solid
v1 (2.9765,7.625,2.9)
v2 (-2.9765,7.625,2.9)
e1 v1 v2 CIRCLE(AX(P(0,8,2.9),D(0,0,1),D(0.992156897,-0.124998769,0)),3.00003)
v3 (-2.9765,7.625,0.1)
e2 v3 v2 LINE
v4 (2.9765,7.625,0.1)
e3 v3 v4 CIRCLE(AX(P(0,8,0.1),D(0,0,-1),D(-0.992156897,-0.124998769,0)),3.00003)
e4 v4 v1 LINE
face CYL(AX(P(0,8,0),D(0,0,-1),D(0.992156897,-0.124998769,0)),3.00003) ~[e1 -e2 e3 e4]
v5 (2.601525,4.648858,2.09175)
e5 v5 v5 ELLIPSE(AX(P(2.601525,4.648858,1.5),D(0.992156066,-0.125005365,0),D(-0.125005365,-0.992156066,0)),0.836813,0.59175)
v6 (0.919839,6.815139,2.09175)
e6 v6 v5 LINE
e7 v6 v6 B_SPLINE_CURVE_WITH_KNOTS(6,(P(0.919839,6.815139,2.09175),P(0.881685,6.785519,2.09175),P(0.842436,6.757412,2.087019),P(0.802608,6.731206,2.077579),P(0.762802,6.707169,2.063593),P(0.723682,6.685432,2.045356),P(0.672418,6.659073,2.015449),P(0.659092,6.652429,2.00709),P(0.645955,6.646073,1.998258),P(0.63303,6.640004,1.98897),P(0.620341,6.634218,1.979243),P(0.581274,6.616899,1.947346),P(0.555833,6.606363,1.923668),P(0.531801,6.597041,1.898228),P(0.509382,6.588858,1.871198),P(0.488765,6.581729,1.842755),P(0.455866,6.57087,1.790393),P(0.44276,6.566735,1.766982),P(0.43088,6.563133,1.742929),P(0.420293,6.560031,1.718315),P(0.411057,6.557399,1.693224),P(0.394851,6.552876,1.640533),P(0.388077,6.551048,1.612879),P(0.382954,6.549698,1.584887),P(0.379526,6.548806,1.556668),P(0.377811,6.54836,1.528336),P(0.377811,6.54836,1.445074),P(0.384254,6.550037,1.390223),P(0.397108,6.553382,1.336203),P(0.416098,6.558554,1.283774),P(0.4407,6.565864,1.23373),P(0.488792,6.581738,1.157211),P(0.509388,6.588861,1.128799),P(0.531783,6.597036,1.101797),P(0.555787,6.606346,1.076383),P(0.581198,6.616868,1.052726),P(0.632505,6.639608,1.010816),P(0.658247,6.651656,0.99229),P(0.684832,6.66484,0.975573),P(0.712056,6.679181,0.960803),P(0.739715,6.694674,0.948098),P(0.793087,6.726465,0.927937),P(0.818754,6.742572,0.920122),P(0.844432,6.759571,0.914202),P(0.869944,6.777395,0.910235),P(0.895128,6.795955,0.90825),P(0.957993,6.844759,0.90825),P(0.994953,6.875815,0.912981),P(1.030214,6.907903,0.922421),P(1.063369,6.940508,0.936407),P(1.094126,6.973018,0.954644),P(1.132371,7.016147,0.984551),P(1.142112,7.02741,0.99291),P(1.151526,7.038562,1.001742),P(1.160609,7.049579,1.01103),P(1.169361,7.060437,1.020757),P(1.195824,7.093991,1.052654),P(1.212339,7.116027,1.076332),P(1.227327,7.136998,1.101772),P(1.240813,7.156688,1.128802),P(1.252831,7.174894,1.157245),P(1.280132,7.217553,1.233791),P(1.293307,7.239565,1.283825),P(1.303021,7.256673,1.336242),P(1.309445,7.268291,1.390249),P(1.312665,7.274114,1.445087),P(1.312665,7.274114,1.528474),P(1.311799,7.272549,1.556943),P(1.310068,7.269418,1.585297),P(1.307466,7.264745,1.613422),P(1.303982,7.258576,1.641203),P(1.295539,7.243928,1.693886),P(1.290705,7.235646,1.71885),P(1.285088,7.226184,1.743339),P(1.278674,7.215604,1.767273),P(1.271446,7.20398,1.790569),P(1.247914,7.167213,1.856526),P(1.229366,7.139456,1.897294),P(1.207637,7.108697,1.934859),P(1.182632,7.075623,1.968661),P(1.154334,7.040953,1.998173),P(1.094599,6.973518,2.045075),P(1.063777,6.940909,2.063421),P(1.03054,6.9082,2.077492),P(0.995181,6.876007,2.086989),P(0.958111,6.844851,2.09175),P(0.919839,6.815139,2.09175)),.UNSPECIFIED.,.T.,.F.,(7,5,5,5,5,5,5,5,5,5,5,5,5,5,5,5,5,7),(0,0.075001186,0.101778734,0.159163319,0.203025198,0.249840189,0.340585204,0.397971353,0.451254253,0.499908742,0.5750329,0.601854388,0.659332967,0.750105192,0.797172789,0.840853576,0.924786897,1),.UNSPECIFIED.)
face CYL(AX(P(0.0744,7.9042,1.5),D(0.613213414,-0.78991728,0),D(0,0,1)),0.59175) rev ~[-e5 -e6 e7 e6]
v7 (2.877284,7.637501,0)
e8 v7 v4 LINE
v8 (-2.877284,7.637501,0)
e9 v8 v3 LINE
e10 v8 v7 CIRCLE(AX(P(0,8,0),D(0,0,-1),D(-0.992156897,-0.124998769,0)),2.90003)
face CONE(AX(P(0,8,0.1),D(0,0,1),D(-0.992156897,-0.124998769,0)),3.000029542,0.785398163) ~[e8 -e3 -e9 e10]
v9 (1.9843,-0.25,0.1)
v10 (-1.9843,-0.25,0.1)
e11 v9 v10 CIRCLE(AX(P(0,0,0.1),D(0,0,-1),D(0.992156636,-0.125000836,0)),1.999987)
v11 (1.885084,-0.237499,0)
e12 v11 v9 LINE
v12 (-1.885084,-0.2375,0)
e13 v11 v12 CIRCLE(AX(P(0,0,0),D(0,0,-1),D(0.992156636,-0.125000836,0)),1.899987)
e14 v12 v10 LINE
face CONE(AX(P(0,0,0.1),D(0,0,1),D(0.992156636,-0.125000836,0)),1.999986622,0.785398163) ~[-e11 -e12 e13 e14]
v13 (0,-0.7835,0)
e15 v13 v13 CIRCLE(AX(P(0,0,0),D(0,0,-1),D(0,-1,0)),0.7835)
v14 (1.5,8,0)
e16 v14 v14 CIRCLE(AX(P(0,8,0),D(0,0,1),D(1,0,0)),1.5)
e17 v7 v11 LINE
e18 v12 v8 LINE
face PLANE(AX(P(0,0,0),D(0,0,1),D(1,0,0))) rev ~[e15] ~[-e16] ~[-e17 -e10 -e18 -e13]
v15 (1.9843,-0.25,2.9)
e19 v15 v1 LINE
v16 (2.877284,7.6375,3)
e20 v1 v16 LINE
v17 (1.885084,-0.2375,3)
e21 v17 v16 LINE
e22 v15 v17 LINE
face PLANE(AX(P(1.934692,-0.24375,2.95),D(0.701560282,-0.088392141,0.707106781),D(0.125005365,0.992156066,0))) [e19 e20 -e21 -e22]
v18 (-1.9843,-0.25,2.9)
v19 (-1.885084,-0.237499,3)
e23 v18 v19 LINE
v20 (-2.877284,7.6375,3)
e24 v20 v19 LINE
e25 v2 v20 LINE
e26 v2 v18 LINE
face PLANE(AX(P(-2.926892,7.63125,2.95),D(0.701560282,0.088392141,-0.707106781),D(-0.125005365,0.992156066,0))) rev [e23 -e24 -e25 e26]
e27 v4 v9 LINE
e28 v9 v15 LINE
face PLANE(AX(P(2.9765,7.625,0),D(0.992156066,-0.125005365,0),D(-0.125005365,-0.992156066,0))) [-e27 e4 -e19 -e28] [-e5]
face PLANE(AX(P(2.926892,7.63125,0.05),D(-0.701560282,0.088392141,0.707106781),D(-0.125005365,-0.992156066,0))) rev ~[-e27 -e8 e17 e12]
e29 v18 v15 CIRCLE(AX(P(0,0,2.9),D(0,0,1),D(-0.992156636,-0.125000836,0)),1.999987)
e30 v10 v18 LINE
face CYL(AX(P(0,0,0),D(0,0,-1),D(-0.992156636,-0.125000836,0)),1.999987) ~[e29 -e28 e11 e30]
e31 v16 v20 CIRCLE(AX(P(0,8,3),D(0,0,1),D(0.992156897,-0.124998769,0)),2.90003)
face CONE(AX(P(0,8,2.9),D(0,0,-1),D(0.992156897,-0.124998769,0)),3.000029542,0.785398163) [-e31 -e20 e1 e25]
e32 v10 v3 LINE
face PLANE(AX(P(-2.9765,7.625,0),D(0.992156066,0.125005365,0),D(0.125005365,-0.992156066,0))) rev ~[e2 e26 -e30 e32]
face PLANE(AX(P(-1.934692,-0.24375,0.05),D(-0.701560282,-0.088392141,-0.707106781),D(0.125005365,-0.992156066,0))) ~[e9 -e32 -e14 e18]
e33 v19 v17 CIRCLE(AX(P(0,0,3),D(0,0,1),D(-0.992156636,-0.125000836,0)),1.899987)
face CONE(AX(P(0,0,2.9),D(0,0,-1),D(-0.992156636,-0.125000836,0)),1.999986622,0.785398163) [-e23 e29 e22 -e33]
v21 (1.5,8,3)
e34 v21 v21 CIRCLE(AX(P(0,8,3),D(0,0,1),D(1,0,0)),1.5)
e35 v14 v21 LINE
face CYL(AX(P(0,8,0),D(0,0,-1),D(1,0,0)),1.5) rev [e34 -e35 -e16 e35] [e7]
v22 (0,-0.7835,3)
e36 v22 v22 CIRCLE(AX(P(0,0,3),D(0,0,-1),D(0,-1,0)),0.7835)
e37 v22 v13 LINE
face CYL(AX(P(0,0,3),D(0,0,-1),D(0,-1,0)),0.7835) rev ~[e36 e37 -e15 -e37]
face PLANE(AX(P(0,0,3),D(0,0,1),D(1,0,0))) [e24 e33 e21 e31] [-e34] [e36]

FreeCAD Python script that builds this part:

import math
import FreeCAD as App
import Part
import Sketcher
Q = App.Units.Quantity


def edges_at(feature, points):
    """Names of the edges that pass closest to the given points."""
    edges = feature.Shape.Edges
    near = lambda p: min(range(len(edges)), key=lambda i: edges[i].distToShape(Part.Vertex(*p))[0])
    return sorted({f"Edge{near(p) + 1}" for p in points})

doc = App.newDocument("Part")
body = doc.addObject("PartDesign::Body", "Body")

# Sketch on XY plane
sketch1 = body.newObject("Sketcher::SketchObject", "Sketch")
sketch1.AttachmentSupport = (doc.getObject("XY_Plane"), [""])
sketch1.MapMode = "FlatFace"
sketch1.addGeometry([
    Part.LineSegment(App.Vector(-3, 7.6, 0), App.Vector(-2, -0.2, 0)),  # 0
    Part.ArcOfCircle(Part.Circle(App.Vector(0, 0, 0), App.Vector(0, 0, 1), 2), math.radians(-173), math.radians(-7)),  # 1
    Part.LineSegment(App.Vector(2, -0.2, 0), App.Vector(3, 7.6, 0)),  # 2
    Part.ArcOfCircle(Part.Circle(App.Vector(0, 8, 0), App.Vector(0, 0, 1), 3), math.radians(-7), math.radians(187)),  # 3
    Part.Circle(App.Vector(0, 8, 0), App.Vector(0, 0, 1), 1.5),  # 4
], False)
sketch1.addConstraint([
    Sketcher.Constraint("Tangent", 0, 2, 1, 1),
    Sketcher.Constraint("Tangent", 1, 2, 2, 1),
    Sketcher.Constraint("Tangent", 2, 2, 3, 1),
    Sketcher.Constraint("Tangent", 3, 2, 0, 1),
    Sketcher.Constraint("Coincident", 1, 3, -1, 1),
    Sketcher.Constraint("Coincident", 4, 3, 3, 3),
    Sketcher.Constraint("PointOnObject", 3, 3, -2),
    Sketcher.Constraint("Diameter", 4, Q("3 mm")),
    Sketcher.Constraint("Radius", 1, Q("2 mm")),
    Sketcher.Constraint("Radius", 3, Q("3 mm")),
    Sketcher.Constraint("DistanceY", -1, 1, 3, 3, Q("8 mm")),
])
pad1 = body.newObject("PartDesign::Pad", "Pad")
pad1.Profile = sketch1
pad1.Length = 3

# Sketch on XY plane
sketch2 = body.newObject("Sketcher::SketchObject", "Sketch001")
sketch2.AttachmentSupport = (doc.getObject("XY_Plane"), [""])
sketch2.MapMode = "FlatFace"
sketch2.AttachmentOffset = App.Placement(App.Vector(0, 0, 3), App.Rotation())
sketch2.addGeometry(Part.Circle(App.Vector(0, 0, 0), App.Vector(0, 0, 1), 0.8), False)
sketch2.addConstraint([
    Sketcher.Constraint("Coincident", 0, 3, -1, 1),
    Sketcher.Constraint("Diameter", 0, Q("1.567 mm")),
])
doc.recompute()
hole = body.newObject("PartDesign::Hole", "Hole")
hole.Profile = sketch2
hole.ThreadType = "None"
hole.Diameter = 1.567
hole.DepthType = "ThroughAll"

# Sketch on an angled plane
sketch3 = body.newObject("Sketcher::SketchObject", "Sketch002")
sketch3.Placement = App.Placement(App.Vector(-3.800722, 4.89594, 0), App.Rotation(App.Vector(-0.78991728, -0.613213414, 0), App.Vector(0, 0, 1), App.Vector(-0.613213414, 0.78991728, 0), "ZXY"))
sketch3.addGeometry(Part.Circle(App.Vector(-4.9, 1.5, 0), App.Vector(0, 0, 1), 0.6), False)
sketch3.addConstraint([
    Sketcher.Constraint("Diameter", 0, Q("1.1835 mm")),
    Sketcher.Constraint("DistanceY", -1, 1, 0, 3, Q("1.5 mm")),
    Sketcher.Constraint("DistanceX", 0, 3, -1, 1, Q("4.9057 mm")),
])
doc.recompute()
hole2 = body.newObject("PartDesign::Hole", "Hole001")
hole2.Profile = sketch3
hole2.ThreadType = "None"
hole2.Diameter = 1.1835
hole2.DepthType = "ThroughAll"
doc.recompute()

chamfer = body.newObject("PartDesign::Chamfer", "Chamfer")
chamfer.Base = (hole2, edges_at(hole2, [
    (0, 11, 3),
    (-2.48, 3.688, 3),
    (0, -2, 3),
    (2.48, 3.688, 3),
    (2.48, 3.688, 0),
    (0, 11, 0),
    (-2.48, 3.688, 0),
    (0, -2, 0),
]))
chamfer.Size = 0.1

doc.recompute()
